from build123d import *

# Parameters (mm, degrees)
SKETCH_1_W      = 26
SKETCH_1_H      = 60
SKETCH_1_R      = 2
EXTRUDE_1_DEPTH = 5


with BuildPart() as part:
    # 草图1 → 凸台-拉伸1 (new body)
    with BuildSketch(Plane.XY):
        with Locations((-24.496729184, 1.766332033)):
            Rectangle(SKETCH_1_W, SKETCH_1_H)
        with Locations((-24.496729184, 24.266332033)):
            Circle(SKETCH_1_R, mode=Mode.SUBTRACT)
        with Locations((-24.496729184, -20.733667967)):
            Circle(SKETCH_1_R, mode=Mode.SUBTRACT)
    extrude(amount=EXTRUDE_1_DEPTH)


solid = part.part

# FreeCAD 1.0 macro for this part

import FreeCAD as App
import Part
import Sketcher


def add_polygon(sketch, points):
    """Adds a closed chain of lines whose ends are joined by coincident constraints."""
    first, n = sketch.GeometryCount, len(points)
    for a, b in zip(points, points[1:] + points[:1]):
        sketch.addGeometry(Part.LineSegment(App.Vector(*a, 0), App.Vector(*b, 0)), False)
    for i in range(n):
        sketch.addConstraint(Sketcher.Constraint("Coincident", first + i, 2, first + (i + 1) % n, 1))

doc = App.newDocument("Part")
body = doc.addObject("PartDesign::Body", "Body")

sketch1 = body.newObject("Sketcher::SketchObject", "Sketch")
sketch1.AttachmentSupport = (doc.getObject("XY_Plane"), [""])
sketch1.MapMode = "FlatFace"
add_polygon(sketch1, [(-37.5, 31.8), (-37.5, -28.2), (-11.5, -28.2), (-11.5, 31.8)])
sketch1.addGeometry(Part.Circle(App.Vector(-24.5, -20.7, 0), App.Vector(0, 0, 1), 2), False)
sketch1.addGeometry(Part.Circle(App.Vector(-24.5, 24.3, 0), App.Vector(0, 0, 1), 2), False)
sketch1.addConstraint(Sketcher.Constraint("Vertical", 0))
sketch1.addConstraint(Sketcher.Constraint("Horizontal", 1))
sketch1.addConstraint(Sketcher.Constraint("Vertical", 2))
sketch1.addConstraint(Sketcher.Constraint("Horizontal", 3))
sketch1.addConstraint(Sketcher.Constraint("Equal", 4, 5))
sketch1.addConstraint(Sketcher.Constraint("Vertical", 4, 3, 5, 3))
sketch1.addConstraint(Sketcher.Constraint("Diameter", 4, 4.0))
sketch1.addConstraint(Sketcher.Constraint("DistanceX", 1, 1, 1, 2, 26.0))
sketch1.addConstraint(Sketcher.Constraint("DistanceY", 0, 2, 0, 1, 60.0))
sketch1.addConstraint(Sketcher.Constraint("DistanceY", 4, 3, 5, 3, 45.0))
sketch1.addConstraint(Sketcher.Constraint("DistanceX", 0, 2, 4, 3, 13.0))
sketch1.addConstraint(Sketcher.Constraint("DistanceY", 0, 2, 4, 3, 7.5))
sketch1.addConstraint(Sketcher.Constraint("DistanceX", 4, 3, -1, 1, 24.496729))
sketch1.addConstraint(Sketcher.Constraint("DistanceY", 4, 3, -1, 1, 20.733668))
pad1 = body.newObject("PartDesign::Pad", "Pad")
pad1.Profile = sketch1
pad1.Length = 5

doc.recompute()
